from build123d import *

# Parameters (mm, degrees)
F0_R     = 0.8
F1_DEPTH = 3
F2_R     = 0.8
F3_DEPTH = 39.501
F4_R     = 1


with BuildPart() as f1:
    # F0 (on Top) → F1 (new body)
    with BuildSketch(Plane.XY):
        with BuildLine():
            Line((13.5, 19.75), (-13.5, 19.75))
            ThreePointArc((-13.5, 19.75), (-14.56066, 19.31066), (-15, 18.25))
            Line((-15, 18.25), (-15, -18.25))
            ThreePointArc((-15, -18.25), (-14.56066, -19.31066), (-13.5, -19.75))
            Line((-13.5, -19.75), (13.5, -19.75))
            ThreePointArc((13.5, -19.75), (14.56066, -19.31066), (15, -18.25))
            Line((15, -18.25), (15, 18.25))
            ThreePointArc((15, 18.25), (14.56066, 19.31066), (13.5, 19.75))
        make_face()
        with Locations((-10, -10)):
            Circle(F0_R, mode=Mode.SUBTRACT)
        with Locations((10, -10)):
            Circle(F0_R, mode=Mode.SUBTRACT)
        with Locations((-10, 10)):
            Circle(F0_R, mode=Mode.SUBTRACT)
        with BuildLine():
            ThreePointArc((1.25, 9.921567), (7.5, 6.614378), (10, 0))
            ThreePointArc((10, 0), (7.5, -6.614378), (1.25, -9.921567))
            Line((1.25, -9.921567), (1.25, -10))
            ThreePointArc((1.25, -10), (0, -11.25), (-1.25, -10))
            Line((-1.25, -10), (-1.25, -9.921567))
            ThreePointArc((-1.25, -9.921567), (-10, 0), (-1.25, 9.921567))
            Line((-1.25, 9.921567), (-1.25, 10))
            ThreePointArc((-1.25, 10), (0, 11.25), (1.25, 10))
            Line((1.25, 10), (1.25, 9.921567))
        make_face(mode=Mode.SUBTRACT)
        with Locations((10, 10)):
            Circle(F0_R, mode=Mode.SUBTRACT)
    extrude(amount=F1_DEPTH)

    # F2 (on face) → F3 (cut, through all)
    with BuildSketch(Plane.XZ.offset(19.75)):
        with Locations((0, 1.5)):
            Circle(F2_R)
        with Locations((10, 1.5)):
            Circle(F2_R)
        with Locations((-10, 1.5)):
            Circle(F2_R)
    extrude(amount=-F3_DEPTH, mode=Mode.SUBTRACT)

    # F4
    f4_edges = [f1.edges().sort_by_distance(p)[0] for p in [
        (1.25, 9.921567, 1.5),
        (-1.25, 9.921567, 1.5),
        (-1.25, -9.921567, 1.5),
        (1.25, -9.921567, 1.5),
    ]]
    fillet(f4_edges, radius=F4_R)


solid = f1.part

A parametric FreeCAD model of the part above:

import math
import FreeCAD as App
import Part
import Sketcher
from FreeCAD import Vector
Q = App.Units.Quantity


def edges_at(feature, points):
    """Names of the edges that pass closest to the given points."""
    edges = feature.Shape.Edges
    near = lambda p: min(range(len(edges)), key=lambda i: edges[i].distToShape(Part.Vertex(*p))[0])
    return sorted({f"Edge{near(p) + 1}" for p in points})

doc = App.newDocument("Part")
body = doc.addObject("PartDesign::Body", "Body")

sketch1 = body.newObject("Sketcher::SketchObject", "Sketch")
sketch1.AttachmentSupport = (doc.getObject("XY_Plane"), [""])
sketch1.MapMode = "FlatFace"
sketch1.addGeometry([
    Part.LineSegment(Vector(13.5, 19.75, 0), Vector(-13.5, 19.75, 0)),
    Part.ArcOfCircle(Part.Circle(Vector(-13.5, 18.25, 0), Vector(0, 0, 1), 1.5), math.radians(90), math.radians(180)),
    Part.LineSegment(Vector(-15, 18.25, 0), Vector(-15, -18.25, 0)),
    Part.ArcOfCircle(Part.Circle(Vector(-13.5, -18.25, 0), Vector(0, 0, 1), 1.5), math.radians(-180), math.radians(-90)),
    Part.LineSegment(Vector(-13.5, -19.75, 0), Vector(13.5, -19.75, 0)),
    Part.ArcOfCircle(Part.Circle(Vector(13.5, -18.25, 0), Vector(0, 0, 1), 1.5), math.radians(-90), math.radians(0)),
    Part.LineSegment(Vector(15, -18.25, 0), Vector(15, 18.25, 0)),
    Part.ArcOfCircle(Part.Circle(Vector(13.5, 18.25, 0), Vector(0, 0, 1), 1.5), math.radians(0), math.radians(90)),
    Part.Circle(Vector(-10, -10, 0), Vector(0, 0, 1), 0.8),
    Part.Circle(Vector(10, -10, 0), Vector(0, 0, 1), 0.8),
    Part.Circle(Vector(-10, 10, 0), Vector(0, 0, 1), 0.8),
    Part.LineSegment(Vector(1.25, 10, 0), Vector(1.25, 9.92, 0)),
    Part.ArcOfCircle(Part.Circle(Vector(0, 0, 0), Vector(0, 0, 1), 10), math.radians(0), math.radians(83)),
    Part.ArcOfCircle(Part.Circle(Vector(0, 0, 0), Vector(0, 0, 1), 10), math.radians(-83), math.radians(0)),
    Part.LineSegment(Vector(1.25, -9.92, 0), Vector(1.25, -10, 0)),
    Part.ArcOfCircle(Part.Circle(Vector(0, -10, 0), Vector(0, 0, 1), 1.25), math.radians(180), math.radians(360)),
    Part.LineSegment(Vector(-1.25, -10, 0), Vector(-1.25, -9.92, 0)),
    Part.ArcOfCircle(Part.Circle(Vector(0, 0, 0), Vector(0, 0, 1), 10), math.radians(97), math.radians(263)),
    Part.LineSegment(Vector(-1.25, 9.92, 0), Vector(-1.25, 10, 0)),
    Part.ArcOfCircle(Part.Circle(Vector(0, 10, 0), Vector(0, 0, 1), 1.25), math.radians(0), math.radians(180)),
    Part.Circle(Vector(10, 10, 0), Vector(0, 0, 1), 0.8),
], False)
sketch1.addConstraint([
    Sketcher.Constraint("Tangent", 0, 2, 1, 1),
    Sketcher.Constraint("Tangent", 1, 2, 2, 1),
    Sketcher.Constraint("Tangent", 2, 2, 3, 1),
    Sketcher.Constraint("Tangent", 3, 2, 4, 1),
    Sketcher.Constraint("Tangent", 4, 2, 5, 1),
    Sketcher.Constraint("Tangent", 5, 2, 6, 1),
    Sketcher.Constraint("Tangent", 6, 2, 7, 1),
    Sketcher.Constraint("Tangent", 7, 2, 0, 1),
    Sketcher.Constraint("Coincident", 11, 2, 12, 2),
    Sketcher.Constraint("Tangent", 12, 1, 13, 2),
    Sketcher.Constraint("Coincident", 13, 1, 14, 1),
    Sketcher.Constraint("Tangent", 14, 2, 15, 2),
    Sketcher.Constraint("Tangent", 15, 1, 16, 1),
    Sketcher.Constraint("Coincident", 16, 2, 17, 2),
    Sketcher.Constraint("Coincident", 17, 1, 18, 1),
    Sketcher.Constraint("Tangent", 18, 2, 19, 2),
    Sketcher.Constraint("Tangent", 19, 1, 11, 1),
    Sketcher.Constraint("Horizontal", 0),
    Sketcher.Constraint("Vertical", 2),
    Sketcher.Constraint("Horizontal", 4),
    Sketcher.Constraint("Vertical", 6),
    Sketcher.Constraint("Vertical", 11),
    Sketcher.Constraint("Vertical", 14),
    Sketcher.Constraint("Vertical", 16),
    Sketcher.Constraint("Vertical", 18),
    Sketcher.Constraint("Coincident", 12, 3, -1, 1),
    Sketcher.Constraint("Coincident", 17, 3, -1, 1),
    Sketcher.Constraint("Equal", 1, 3),
    Sketcher.Constraint("Equal", 3, 5),
    Sketcher.Constraint("Equal", 5, 7),
    Sketcher.Constraint("Equal", 8, 9),
    Sketcher.Constraint("Equal", 9, 10),
    Sketcher.Constraint("Equal", 12, 13),
    Sketcher.Constraint("Equal", 13, 17),
    Sketcher.Constraint("Equal", 15, 19),
    Sketcher.Constraint("Equal", 10, 20),
    Sketcher.Constraint("Symmetric", 1, 3, 5, 3, -1, 1),
    Sketcher.Constraint("Symmetric", 9, 3, 10, 3, -1, 1),
    Sketcher.Constraint("Symmetric", 15, 3, 19, 3, -1, 1),
    Sketcher.Constraint("Symmetric", 8, 3, 20, 3, -1, 1),
    Sketcher.Constraint("Symmetric", 8, 3, 9, 3, -2),
    Sketcher.Constraint("PointOnObject", 15, 3, -2),
    Sketcher.Constraint("PointOnObject", 12, 1, -1),
    Sketcher.Constraint("Horizontal", 9, 3, 15, 3),
    Sketcher.Constraint("Vertical", 20, 3, 12, 1),
    Sketcher.Constraint("Radius", 12, Q("10 mm")),
    Sketcher.Constraint("Diameter", 8, Q("1.6 mm")),
    Sketcher.Constraint("Radius", 1, Q("1.500001 mm")),
    Sketcher.Constraint("DistanceX", 0, 2, 0, 1, Q("27 mm")),
    Sketcher.Constraint("Radius", 15, Q("1.25 mm")),
    Sketcher.Constraint("DistanceY", 2, 2, 2, 1, Q("36.5 mm")),
    Sketcher.Constraint("DistanceY", 8, 3, -1, 1, Q("10 mm")),
])
pad1 = body.newObject("PartDesign::Pad", "Pad")
pad1.Profile = sketch1
pad1.Length = 3

sketch2 = body.newObject("Sketcher::SketchObject", "Sketch001")
sketch2.AttachmentSupport = (doc.getObject("XZ_Plane"), [""])
sketch2.MapMode = "FlatFace"
sketch2.AttachmentOffset = App.Placement(Vector(0, 0, 19.75), App.Rotation())
sketch2.addGeometry([
    Part.Circle(Vector(0, 1.5, 0), Vector(0, 0, 1), 0.8),
    Part.Circle(Vector(10, 1.5, 0), Vector(0, 0, 1), 0.8),
    Part.Circle(Vector(-10, 1.5, 0), Vector(0, 0, 1), 0.8),
], False)
sketch2.addConstraint([
    Sketcher.Constraint("Equal", 0, 1),
    Sketcher.Constraint("Equal", 1, 2),
    Sketcher.Constraint("Symmetric", 1, 3, 2, 3, -2),
    Sketcher.Constraint("PointOnObject", 0, 3, -2),
    Sketcher.Constraint("Horizontal", 0, 3, 1, 3),
    Sketcher.Constraint("Diameter", 0, Q("1.6 mm")),
    Sketcher.Constraint("DistanceX", -1, 1, 1, 3, Q("10 mm")),
    Sketcher.Constraint("DistanceY", -1, 1, 0, 3, Q("1.5 mm")),
])
pocket1 = body.newObject("PartDesign::Pocket", "Pocket")
pocket1.Profile = sketch2
pocket1.Type = "ThroughAll"
doc.recompute()

fillet = body.newObject("PartDesign::Fillet", "Fillet")
fillet.Base = (pocket1, edges_at(pocket1, [
    (1.25, 9.922, 1.5),
    (-1.25, 9.922, 1.5),
    (-1.25, -9.922, 1.5),
    (1.25, -9.922, 1.5),
]))
fillet.Radius = 1

doc.recompute()
